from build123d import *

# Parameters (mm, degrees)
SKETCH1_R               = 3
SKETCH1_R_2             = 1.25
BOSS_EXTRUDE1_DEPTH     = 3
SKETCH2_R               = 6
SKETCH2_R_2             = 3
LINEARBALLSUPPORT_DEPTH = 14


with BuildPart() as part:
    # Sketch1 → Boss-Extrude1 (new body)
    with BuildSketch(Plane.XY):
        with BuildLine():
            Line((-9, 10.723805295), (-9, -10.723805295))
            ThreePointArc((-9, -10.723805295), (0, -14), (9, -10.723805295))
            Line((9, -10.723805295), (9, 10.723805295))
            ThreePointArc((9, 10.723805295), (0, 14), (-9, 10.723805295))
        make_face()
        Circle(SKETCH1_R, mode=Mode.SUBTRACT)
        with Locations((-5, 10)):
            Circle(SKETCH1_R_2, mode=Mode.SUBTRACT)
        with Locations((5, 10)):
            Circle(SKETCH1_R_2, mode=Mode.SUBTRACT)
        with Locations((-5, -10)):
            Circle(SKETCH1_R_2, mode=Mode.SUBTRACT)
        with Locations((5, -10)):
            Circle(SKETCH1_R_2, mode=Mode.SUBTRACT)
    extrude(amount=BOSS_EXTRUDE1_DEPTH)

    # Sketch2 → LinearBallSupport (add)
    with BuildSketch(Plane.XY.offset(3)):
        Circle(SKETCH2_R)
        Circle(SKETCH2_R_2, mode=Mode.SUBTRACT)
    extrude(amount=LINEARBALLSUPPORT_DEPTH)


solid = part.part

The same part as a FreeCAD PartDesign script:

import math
import FreeCAD as App
import Part
import Sketcher

doc = App.newDocument("Part")
params = doc.addObject("Spreadsheet::Sheet", "Params")
for row, (alias, value) in enumerate([
    ("sketch1_diameter", "6 mm"),
    ("sketch1_radius", "14 mm"),
    ("sketch1_diameter2", "2.5 mm"),
    ("pad1_length", "3 mm"),
    ("sketch2_diameter", "12 mm"),
    ("sketch2_diameter2", "6 mm"),
    ("pad2_length", "14 mm"),
], start=1):
    params.set(f"A{row}", alias)
    params.set(f"B{row}", "=" + value)
    params.setAlias(f"B{row}", alias)

body = doc.addObject("PartDesign::Body", "Body")

# Sketch on XY plane
sketch1 = body.newObject("Sketcher::SketchObject", "Sketch")
sketch1.AttachmentSupport = (doc.getObject("XY_Plane"), [""])
sketch1.MapMode = "FlatFace"
sketch1.addGeometry(Part.LineSegment(App.Vector(-9, 10.7, 0), App.Vector(-9, -10.7, 0)), False)
sketch1.addGeometry(Part.ArcOfCircle(Part.Circle(App.Vector(0, 0, 0), App.Vector(0, 0, 1), 14), math.radians(-130), math.radians(-50)), False)
sketch1.addGeometry(Part.LineSegment(App.Vector(9, -10.7, 0), App.Vector(9, 10.7, 0)), False)
sketch1.addGeometry(Part.ArcOfCircle(Part.Circle(App.Vector(0, 0, 0), App.Vector(0, 0, 1), 14), math.radians(50), math.radians(130)), False)
sketch1.addGeometry(Part.Circle(App.Vector(-5, -10, 0), App.Vector(0, 0, 1), 1.2), False)
sketch1.addGeometry(Part.Circle(App.Vector(5, -10, 0), App.Vector(0, 0, 1), 1.2), False)
sketch1.addGeometry(Part.Circle(App.Vector(-5, 10, 0), App.Vector(0, 0, 1), 1.2), False)
sketch1.addGeometry(Part.Circle(App.Vector(0, 0, 0), App.Vector(0, 0, 1), 3), False)
sketch1.addGeometry(Part.Circle(App.Vector(5, 10, 0), App.Vector(0, 0, 1), 1.2), False)
sketch1.addConstraint(Sketcher.Constraint("Coincident", 0, 2, 1, 1))
sketch1.addConstraint(Sketcher.Constraint("Coincident", 1, 2, 2, 1))
sketch1.addConstraint(Sketcher.Constraint("Coincident", 2, 2, 3, 1))
sketch1.addConstraint(Sketcher.Constraint("Coincident", 3, 2, 0, 1))
sketch1.addConstraint(Sketcher.Constraint("Vertical", 0))
sketch1.addConstraint(Sketcher.Constraint("Vertical", 2))
sketch1.addConstraint(Sketcher.Constraint("Coincident", 1, 3, -1, 1))
sketch1.addConstraint(Sketcher.Constraint("Coincident", 3, 3, -1, 1))
sketch1.addConstraint(Sketcher.Constraint("Coincident", 7, 3, -1, 1))
sketch1.addConstraint(Sketcher.Constraint("Equal", 1, 3))
sketch1.addConstraint(Sketcher.Constraint("Equal", 4, 5))
sketch1.addConstraint(Sketcher.Constraint("Equal", 5, 6))
sketch1.addConstraint(Sketcher.Constraint("Equal", 6, 8))
sketch1.addConstraint(Sketcher.Constraint("Symmetric", 5, 3, 6, 3, -1, 1))
sketch1.addConstraint(Sketcher.Constraint("Symmetric", 4, 3, 8, 3, -1, 1))
sketch1.addConstraint(Sketcher.Constraint("Symmetric", 4, 3, 5, 3, -2))
sketch1.addConstraint(Sketcher.Constraint("Horizontal", 0, 2, 1, 2))
sketch1.addConstraint(Sketcher.Constraint("Diameter", 7, 6.0))
sketch1.addConstraint(Sketcher.Constraint("Radius", 1, 14.0))
sketch1.addConstraint(Sketcher.Constraint("Diameter", 4, 2.5))
sketch1.addConstraint(Sketcher.Constraint("DistanceX", 4, 3, -1, 1, 5.0))
sketch1.addConstraint(Sketcher.Constraint("DistanceY", 4, 3, -1, 1, 10.0))
sketch1.addConstraint(Sketcher.Constraint("DistanceX", 0, 2, -1, 1, 9.0))
sketch1.setExpression("Constraints[17]", "Params.sketch1_diameter")
sketch1.setExpression("Constraints[18]", "Params.sketch1_radius")
sketch1.setExpression("Constraints[19]", "Params.sketch1_diameter2")
pad1 = body.newObject("PartDesign::Pad", "Pad")
pad1.Profile = sketch1
pad1.setExpression("Length", "Params.pad1_length")

# Sketch on XY plane
sketch2 = body.newObject("Sketcher::SketchObject", "Sketch001")
sketch2.AttachmentSupport = (doc.getObject("XY_Plane"), [""])
sketch2.MapMode = "FlatFace"
sketch2.AttachmentOffset = App.Placement(App.Vector(0, 0, 3), App.Rotation())
sketch2.addGeometry(Part.Circle(App.Vector(0, 0, 0), App.Vector(0, 0, 1), 6), False)
sketch2.addGeometry(Part.Circle(App.Vector(0, 0, 0), App.Vector(0, 0, 1), 3), False)
sketch2.addConstraint(Sketcher.Constraint("Coincident", 0, 3, -1, 1))
sketch2.addConstraint(Sketcher.Constraint("Coincident", 1, 3, -1, 1))
sketch2.addConstraint(Sketcher.Constraint("Diameter", 0, 12.0))
sketch2.addConstraint(Sketcher.Constraint("Diameter", 1, 6.0))
sketch2.setExpression("Constraints[2]", "Params.sketch2_diameter")
sketch2.setExpression("Constraints[3]", "Params.sketch2_diameter2")
pad2 = body.newObject("PartDesign::Pad", "Pad001")
pad2.Profile = sketch2
pad2.setExpression("Length", "Params.pad2_length")

doc.recompute()
